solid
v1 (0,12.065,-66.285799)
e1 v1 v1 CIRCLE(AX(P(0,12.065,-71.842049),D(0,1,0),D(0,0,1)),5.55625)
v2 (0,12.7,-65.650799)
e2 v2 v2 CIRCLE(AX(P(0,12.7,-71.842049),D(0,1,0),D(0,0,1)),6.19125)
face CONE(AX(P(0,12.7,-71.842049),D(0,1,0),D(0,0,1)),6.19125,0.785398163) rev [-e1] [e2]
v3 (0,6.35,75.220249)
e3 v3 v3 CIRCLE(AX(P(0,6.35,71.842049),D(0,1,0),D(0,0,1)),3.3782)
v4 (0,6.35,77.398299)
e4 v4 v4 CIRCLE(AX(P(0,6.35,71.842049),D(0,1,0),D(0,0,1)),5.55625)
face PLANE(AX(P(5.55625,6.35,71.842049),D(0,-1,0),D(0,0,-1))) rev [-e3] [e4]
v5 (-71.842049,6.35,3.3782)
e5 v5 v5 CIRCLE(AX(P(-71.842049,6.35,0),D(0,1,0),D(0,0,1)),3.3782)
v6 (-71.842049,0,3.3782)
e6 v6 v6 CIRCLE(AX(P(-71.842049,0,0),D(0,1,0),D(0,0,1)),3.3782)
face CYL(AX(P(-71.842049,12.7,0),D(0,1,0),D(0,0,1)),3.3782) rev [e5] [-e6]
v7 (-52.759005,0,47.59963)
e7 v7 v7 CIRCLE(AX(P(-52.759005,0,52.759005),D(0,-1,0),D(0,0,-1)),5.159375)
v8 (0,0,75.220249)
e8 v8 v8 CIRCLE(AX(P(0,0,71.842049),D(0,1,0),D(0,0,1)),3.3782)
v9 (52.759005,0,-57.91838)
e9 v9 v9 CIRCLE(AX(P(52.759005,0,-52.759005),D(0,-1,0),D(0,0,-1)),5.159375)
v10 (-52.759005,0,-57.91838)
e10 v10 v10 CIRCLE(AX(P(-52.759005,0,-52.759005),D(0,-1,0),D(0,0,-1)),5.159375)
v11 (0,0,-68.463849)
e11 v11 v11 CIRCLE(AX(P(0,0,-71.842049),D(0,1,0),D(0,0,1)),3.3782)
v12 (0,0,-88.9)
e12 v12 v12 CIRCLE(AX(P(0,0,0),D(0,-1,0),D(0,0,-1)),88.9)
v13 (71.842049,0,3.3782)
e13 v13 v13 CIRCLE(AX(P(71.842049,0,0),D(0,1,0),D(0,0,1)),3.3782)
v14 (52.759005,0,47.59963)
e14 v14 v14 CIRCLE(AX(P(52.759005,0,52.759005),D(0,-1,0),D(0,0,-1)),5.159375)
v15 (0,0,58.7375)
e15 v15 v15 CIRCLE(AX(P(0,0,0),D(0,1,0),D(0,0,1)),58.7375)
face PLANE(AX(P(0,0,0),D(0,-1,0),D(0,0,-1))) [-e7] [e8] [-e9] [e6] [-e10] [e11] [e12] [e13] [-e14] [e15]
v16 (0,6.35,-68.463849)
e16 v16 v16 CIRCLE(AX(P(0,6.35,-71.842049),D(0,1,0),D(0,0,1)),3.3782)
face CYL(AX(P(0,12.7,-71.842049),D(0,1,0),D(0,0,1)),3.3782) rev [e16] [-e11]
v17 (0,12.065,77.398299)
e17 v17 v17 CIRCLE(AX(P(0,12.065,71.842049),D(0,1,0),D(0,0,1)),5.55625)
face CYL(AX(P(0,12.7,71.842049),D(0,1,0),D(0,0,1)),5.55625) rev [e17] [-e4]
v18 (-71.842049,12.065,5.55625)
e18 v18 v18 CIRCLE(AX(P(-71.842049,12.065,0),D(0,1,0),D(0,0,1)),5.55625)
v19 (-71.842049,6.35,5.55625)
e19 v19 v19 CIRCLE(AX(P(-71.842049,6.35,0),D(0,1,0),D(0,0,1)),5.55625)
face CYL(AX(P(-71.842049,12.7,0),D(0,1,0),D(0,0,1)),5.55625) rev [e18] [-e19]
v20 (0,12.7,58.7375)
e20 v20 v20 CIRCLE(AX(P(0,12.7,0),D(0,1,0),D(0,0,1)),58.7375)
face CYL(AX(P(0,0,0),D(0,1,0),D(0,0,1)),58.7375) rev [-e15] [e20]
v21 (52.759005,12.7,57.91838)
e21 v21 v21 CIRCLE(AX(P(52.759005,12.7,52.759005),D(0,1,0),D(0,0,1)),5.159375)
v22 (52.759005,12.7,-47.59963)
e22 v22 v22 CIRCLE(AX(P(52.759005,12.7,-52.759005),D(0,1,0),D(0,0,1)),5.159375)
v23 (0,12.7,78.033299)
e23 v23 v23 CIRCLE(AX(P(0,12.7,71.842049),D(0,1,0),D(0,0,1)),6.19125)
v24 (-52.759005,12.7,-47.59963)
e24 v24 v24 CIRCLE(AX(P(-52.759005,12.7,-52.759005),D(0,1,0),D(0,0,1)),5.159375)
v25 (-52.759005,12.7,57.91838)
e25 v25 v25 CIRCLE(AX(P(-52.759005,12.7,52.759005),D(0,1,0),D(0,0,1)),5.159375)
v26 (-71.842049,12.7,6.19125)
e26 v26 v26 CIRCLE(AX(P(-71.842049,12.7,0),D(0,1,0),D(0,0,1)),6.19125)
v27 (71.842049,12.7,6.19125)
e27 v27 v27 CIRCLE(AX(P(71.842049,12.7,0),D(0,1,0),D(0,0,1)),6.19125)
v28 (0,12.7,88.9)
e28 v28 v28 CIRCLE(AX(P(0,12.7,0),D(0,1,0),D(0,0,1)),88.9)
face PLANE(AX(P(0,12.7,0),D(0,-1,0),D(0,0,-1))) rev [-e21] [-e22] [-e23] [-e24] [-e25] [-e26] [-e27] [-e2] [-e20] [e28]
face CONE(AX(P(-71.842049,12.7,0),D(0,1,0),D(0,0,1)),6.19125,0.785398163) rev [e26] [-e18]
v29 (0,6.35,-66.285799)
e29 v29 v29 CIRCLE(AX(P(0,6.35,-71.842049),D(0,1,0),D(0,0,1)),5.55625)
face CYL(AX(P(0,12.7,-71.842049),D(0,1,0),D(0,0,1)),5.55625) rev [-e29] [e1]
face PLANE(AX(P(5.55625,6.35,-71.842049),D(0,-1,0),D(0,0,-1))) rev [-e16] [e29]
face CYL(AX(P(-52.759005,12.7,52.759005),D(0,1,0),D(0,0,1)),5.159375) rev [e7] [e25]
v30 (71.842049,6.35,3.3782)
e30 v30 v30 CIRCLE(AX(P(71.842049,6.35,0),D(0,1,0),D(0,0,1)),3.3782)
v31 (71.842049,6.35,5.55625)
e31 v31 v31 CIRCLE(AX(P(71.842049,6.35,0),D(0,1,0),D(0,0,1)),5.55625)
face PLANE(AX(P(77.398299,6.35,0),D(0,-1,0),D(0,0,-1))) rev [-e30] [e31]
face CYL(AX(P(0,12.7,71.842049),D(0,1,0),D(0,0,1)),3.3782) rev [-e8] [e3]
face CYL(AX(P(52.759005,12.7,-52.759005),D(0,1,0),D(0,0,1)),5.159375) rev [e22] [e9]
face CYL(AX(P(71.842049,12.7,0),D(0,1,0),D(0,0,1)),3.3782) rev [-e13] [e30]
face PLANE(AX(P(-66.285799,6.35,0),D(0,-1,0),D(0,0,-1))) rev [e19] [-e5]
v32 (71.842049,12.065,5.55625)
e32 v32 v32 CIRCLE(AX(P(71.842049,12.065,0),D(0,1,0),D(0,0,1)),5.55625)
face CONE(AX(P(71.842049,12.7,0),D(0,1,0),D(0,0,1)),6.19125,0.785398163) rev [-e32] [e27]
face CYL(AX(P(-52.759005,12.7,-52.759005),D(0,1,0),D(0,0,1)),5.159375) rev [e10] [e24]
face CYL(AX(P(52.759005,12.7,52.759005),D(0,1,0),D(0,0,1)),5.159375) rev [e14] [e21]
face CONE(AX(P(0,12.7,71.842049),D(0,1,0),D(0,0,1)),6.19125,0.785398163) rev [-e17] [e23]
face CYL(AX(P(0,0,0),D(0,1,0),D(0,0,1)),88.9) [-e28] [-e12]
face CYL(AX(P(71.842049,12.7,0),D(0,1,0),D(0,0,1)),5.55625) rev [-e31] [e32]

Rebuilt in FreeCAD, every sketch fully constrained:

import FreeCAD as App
import Part
import Sketcher
Q = App.Units.Quantity

doc = App.newDocument("Part")
params = doc.addObject("Spreadsheet::Sheet", "Params")
for row, (alias, value) in enumerate([
    ("sketch1_width", "7 in"),
    ("pad1_length", "0.5 in"),
    ("sketch2_diameter", "0.40625 in"),
    ("hole_diameter", "0.40625 in"),
    ("hole_depth", "1 in"),
    ("sketch3_diameter", "4.625 in"),
    ("sketch4_diameter", "7 in"),
    ("pocket2_length", "0.5 in"),
    ("sketch5_width", "0.5 in"),
    ("sketch5_width2", "0.25 in"),
    ("sketch5_width3", "0.225 in"),
    ("sketch5_height", "0.133 in"),
    ("groove_angle", "360 deg"),
    ("linearpattern_pitch", "4 in"),
    ("linearpattern2_pitch", "4 in"),
    ("linearpattern3_pitch", "143.684098 mm"),
], start=1):
    params.set(f"A{row}", alias)
    params.set(f"B{row}", "=" + value)
    params.setAlias(f"B{row}", alias)

body = doc.addObject("PartDesign::Body", "Body")

# Sketch on XZ plane
sketch1 = body.newObject("Sketcher::SketchObject", "Sketch")
sketch1.AttachmentSupport = (doc.getObject("XZ_Plane"), [""])
sketch1.MapMode = "FlatFace"
sketch1.addGeometry(Part.LineSegment(App.Vector(-89, -89, 0), App.Vector(-89, 89, 0)), False)
sketch1.addGeometry(Part.LineSegment(App.Vector(-89, 89, 0), App.Vector(89, 89, 0)), False)
sketch1.addGeometry(Part.LineSegment(App.Vector(89, 89, 0), App.Vector(89, -89, 0)), False)
sketch1.addGeometry(Part.LineSegment(App.Vector(89, -89, 0), App.Vector(-89, -89, 0)), False)
sketch1.addConstraint(Sketcher.Constraint("Coincident", 0, 2, 1, 1))
sketch1.addConstraint(Sketcher.Constraint("Coincident", 1, 2, 2, 1))
sketch1.addConstraint(Sketcher.Constraint("Coincident", 2, 2, 3, 1))
sketch1.addConstraint(Sketcher.Constraint("Coincident", 3, 2, 0, 1))
sketch1.addConstraint(Sketcher.Constraint("Vertical", 0))
sketch1.addConstraint(Sketcher.Constraint("Horizontal", 1))
sketch1.addConstraint(Sketcher.Constraint("Vertical", 2))
sketch1.addConstraint(Sketcher.Constraint("Horizontal", 3))
sketch1.addConstraint(Sketcher.Constraint("Symmetric", 0, 2, 2, 2, -1, 1))
sketch1.addConstraint(Sketcher.Constraint("Equal", 3, 0))
sketch1.addConstraint(Sketcher.Constraint("DistanceX", 1, 1, 1, 2, Q("7 in")))
sketch1.setExpression("Constraints[10]", "Params.sketch1_width")
pad1 = body.newObject("PartDesign::Pad", "Pad")
pad1.Profile = sketch1
pad1.setExpression("Length", "Params.pad1_length")
pad1.Reversed = True

# Sketch on XZ plane
sketch2 = body.newObject("Sketcher::SketchObject", "Sketch001")
sketch2.AttachmentSupport = (doc.getObject("XZ_Plane"), [""])
sketch2.MapMode = "FlatFace"
sketch2.AttachmentOffset = App.Placement(App.Vector(0, 0, -0.5 * 25.4), App.Rotation())
sketch2.addGeometry(Part.Circle(App.Vector(-53, -53, 0), App.Vector(0, 0, 1), 5), False)
sketch2.addGeometry(Part.Circle(App.Vector(53, -53, 0), App.Vector(0, 0, 1), 5), False)
sketch2.addGeometry(Part.Circle(App.Vector(53, 53, 0), App.Vector(0, 0, 1), 5), False)
sketch2.addGeometry(Part.Circle(App.Vector(-53, 53, 0), App.Vector(0, 0, 1), 5), False)
sketch2.addConstraint(Sketcher.Constraint("Equal", 0, 1))
sketch2.addConstraint(Sketcher.Constraint("Equal", 1, 2))
sketch2.addConstraint(Sketcher.Constraint("Equal", 2, 3))
sketch2.addConstraint(Sketcher.Constraint("Symmetric", 0, 3, 2, 3, -1, 1))
sketch2.addConstraint(Sketcher.Constraint("Symmetric", 1, 3, 3, 3, -1, 1))
sketch2.addConstraint(Sketcher.Constraint("Symmetric", 0, 3, 1, 3, -2))
sketch2.addConstraint(Sketcher.Constraint("Diameter", 0, Q("0.40625 in")))
sketch2.addConstraint(Sketcher.Constraint("DistanceX", 0, 3, 1, 3, Q("105.518009 mm")))
sketch2.addConstraint(Sketcher.Constraint("DistanceY", 1, 3, 2, 3, Q("105.518009 mm")))
sketch2.setExpression("Constraints[6]", "Params.sketch2_diameter")
doc.recompute()
hole = body.newObject("PartDesign::Hole", "Hole")
hole.Profile = sketch2
hole.ThreadType = "None"
hole.setExpression("Diameter", "Params.hole_diameter")
hole.DepthType = "Dimension"
hole.setExpression("Depth", "Params.hole_depth")
hole.DrillPoint = "Angled"
hole.DrillPointAngle = 118
hole.Reversed = True

# Sketch on XZ plane
sketch3 = body.newObject("Sketcher::SketchObject", "Sketch002")
sketch3.AttachmentSupport = (doc.getObject("XZ_Plane"), [""])
sketch3.MapMode = "FlatFace"
sketch3.AttachmentOffset = App.Placement(App.Vector(0, 0, -0.5 * 25.4), App.Rotation())
sketch3.addGeometry(Part.Circle(App.Vector(0, 0, 0), App.Vector(0, 0, 1), 59), False)
sketch3.addConstraint(Sketcher.Constraint("Coincident", 0, 3, -1, 1))
sketch3.addConstraint(Sketcher.Constraint("Diameter", 0, Q("4.625 in")))
sketch3.setExpression("Constraints[1]", "Params.sketch3_diameter")
pocket1 = body.newObject("PartDesign::Pocket", "Pocket")
pocket1.Profile = sketch3
pocket1.Type = "ThroughAll"
pocket1.Reversed = True

# Sketch on XZ plane
sketch4 = body.newObject("Sketcher::SketchObject", "Sketch003")
sketch4.AttachmentSupport = (doc.getObject("XZ_Plane"), [""])
sketch4.MapMode = "FlatFace"
sketch4.AttachmentOffset = App.Placement(App.Vector(0, 0, -0.5 * 25.4), App.Rotation())
sketch4.addGeometry(Part.LineSegment(App.Vector(-115, -115, 0), App.Vector(-115, 115, 0)), False)
sketch4.addGeometry(Part.LineSegment(App.Vector(-115, 115, 0), App.Vector(115, 115, 0)), False)
sketch4.addGeometry(Part.LineSegment(App.Vector(115, 115, 0), App.Vector(115, -115, 0)), False)
sketch4.addGeometry(Part.LineSegment(App.Vector(115, -115, 0), App.Vector(-115, -115, 0)), False)
sketch4.addGeometry(Part.Circle(App.Vector(0, 0, 0), App.Vector(0, 0, 1), 89), False)
sketch4.addConstraint(Sketcher.Constraint("Coincident", 0, 2, 1, 1))
sketch4.addConstraint(Sketcher.Constraint("Coincident", 1, 2, 2, 1))
sketch4.addConstraint(Sketcher.Constraint("Coincident", 2, 2, 3, 1))
sketch4.addConstraint(Sketcher.Constraint("Coincident", 3, 2, 0, 1))
sketch4.addConstraint(Sketcher.Constraint("Vertical", 0))
sketch4.addConstraint(Sketcher.Constraint("Horizontal", 1))
sketch4.addConstraint(Sketcher.Constraint("Vertical", 2))
sketch4.addConstraint(Sketcher.Constraint("Horizontal", 3))
sketch4.addConstraint(Sketcher.Constraint("Coincident", 4, 3, -1, 1))
sketch4.addConstraint(Sketcher.Constraint("Symmetric", 0, 2, 2, 2, -1, 1))
sketch4.addConstraint(Sketcher.Constraint("Equal", 3, 0))
sketch4.addConstraint(Sketcher.Constraint("Diameter", 4, Q("7 in")))
sketch4.addConstraint(Sketcher.Constraint("DistanceX", 1, 1, 1, 2, Q("230.154 mm")))
sketch4.setExpression("Constraints[11]", "Params.sketch4_diameter")
pocket2 = body.newObject("PartDesign::Pocket", "Pocket001")
pocket2.Profile = sketch4
pocket2.setExpression("Length", "Params.pocket2_length")
pocket2.Reversed = True

# Sketch on YZ plane
sketch5 = body.newObject("Sketcher::SketchObject", "Sketch004")
sketch5.AttachmentSupport = (doc.getObject("YZ_Plane"), [""])
sketch5.MapMode = "FlatFace"
sketch5.addGeometry(Part.LineSegment(App.Vector(0, -71.8, 0), App.Vector(12.7, -71.8, 0)), False)
sketch5.addGeometry(Part.LineSegment(App.Vector(12.7, -71.8, 0), App.Vector(12.7, -65.7, 0)), False)
sketch5.addGeometry(Part.LineSegment(App.Vector(12.7, -65.7, 0), App.Vector(12.1, -66.3, 0)), False)
sketch5.addGeometry(Part.LineSegment(App.Vector(12.1, -66.3, 0), App.Vector(6.3, -66.3, 0)), False)
sketch5.addGeometry(Part.LineSegment(App.Vector(6.3, -66.3, 0), App.Vector(6.3, -68.5, 0)), False)
sketch5.addGeometry(Part.LineSegment(App.Vector(6.3, -68.5, 0), App.Vector(0, -68.5, 0)), False)
sketch5.addGeometry(Part.LineSegment(App.Vector(0, -68.5, 0), App.Vector(0, -71.8, 0)), False)
sketch5.addGeometry(Part.LineSegment(App.Vector(12.7, -71.8, 0), App.Vector(0, -71.8, 0)), True)  # axis
sketch5.addConstraint(Sketcher.Constraint("Coincident", 0, 2, 1, 1))
sketch5.addConstraint(Sketcher.Constraint("Coincident", 1, 2, 2, 1))
sketch5.addConstraint(Sketcher.Constraint("Coincident", 2, 2, 3, 1))
sketch5.addConstraint(Sketcher.Constraint("Coincident", 3, 2, 4, 1))
sketch5.addConstraint(Sketcher.Constraint("Coincident", 4, 2, 5, 1))
sketch5.addConstraint(Sketcher.Constraint("Coincident", 5, 2, 6, 1))
sketch5.addConstraint(Sketcher.Constraint("Coincident", 6, 2, 0, 1))
sketch5.addConstraint(Sketcher.Constraint("Horizontal", 0))
sketch5.addConstraint(Sketcher.Constraint("Vertical", 1))
sketch5.addConstraint(Sketcher.Constraint("Horizontal", 3))
sketch5.addConstraint(Sketcher.Constraint("Vertical", 4))
sketch5.addConstraint(Sketcher.Constraint("Horizontal", 5))
sketch5.addConstraint(Sketcher.Constraint("Vertical", 6))
sketch5.addConstraint(Sketcher.Constraint("Horizontal", 7))
sketch5.addConstraint(Sketcher.Constraint("Coincident", 7, 1, 0, 2))
sketch5.addConstraint(Sketcher.Constraint("PointOnObject", 5, 2, -2))
sketch5.addConstraint(Sketcher.Constraint("PointOnObject", 7, 2, -2))
sketch5.addConstraint(Sketcher.Constraint("DistanceX", 0, 1, 0, 2, Q("0.5 in")))
sketch5.addConstraint(Sketcher.Constraint("Angle", 2, Q("-135 deg")))
sketch5.addConstraint(Sketcher.Constraint("DistanceX", 5, 2, 5, 1, Q("0.25 in")))
sketch5.addConstraint(Sketcher.Constraint("DistanceX", 3, 2, 3, 1, Q("0.225 in")))
sketch5.addConstraint(Sketcher.Constraint("DistanceY", 6, 2, 6, 1, Q("0.133 in")))
sketch5.addConstraint(Sketcher.Constraint("DistanceY", 0, 2, 2, 2, Q("0.21875 in")))
sketch5.addConstraint(Sketcher.Constraint("DistanceY", 1, 2, -1, 1, Q("65.650799 mm")))
sketch5.setExpression("Constraints[17]", "Params.sketch5_width")
sketch5.setExpression("Constraints[19]", "Params.sketch5_width2")
sketch5.setExpression("Constraints[20]", "Params.sketch5_width3")
sketch5.setExpression("Constraints[21]", "Params.sketch5_height")
groove = body.newObject("PartDesign::Groove", "Groove")
groove.Profile = sketch5
groove.ReferenceAxis = (sketch5, ["Axis0"])
groove.setExpression("Angle", "Params.groove_angle")
doc.recompute()

datumline = body.newObject("PartDesign::Line", "DatumLine")
datumline.Placement = App.Placement(App.Vector(0, 0, 0), App.Rotation(App.Vector(0, 0, 1), App.Vector(0.707106781, 0, 0.707106781)))
linearpattern = body.newObject("PartDesign::LinearPattern", "LinearPattern")
linearpattern.Originals = [groove]
linearpattern.Direction = (datumline, [""])
linearpattern.Mode = "offset"
linearpattern.setExpression("Offset", "Params.linearpattern_pitch")
linearpattern.Occurrences = 2
body.Tip = linearpattern
doc.recompute()

datumline2 = body.newObject("PartDesign::Line", "DatumLine001")
datumline2.Placement = App.Placement(App.Vector(0, 0, 0), App.Rotation(App.Vector(0, 0, 1), App.Vector(-0.707106781, 0, 0.707106781)))
linearpattern2 = body.newObject("PartDesign::LinearPattern", "LinearPattern001")
linearpattern2.Originals = [groove]
linearpattern2.Direction = (datumline2, [""])
linearpattern2.Mode = "offset"
linearpattern2.setExpression("Offset", "Params.linearpattern2_pitch")
linearpattern2.Occurrences = 2
body.Tip = linearpattern2
doc.recompute()

linearpattern3 = body.newObject("PartDesign::LinearPattern", "LinearPattern002")
linearpattern3.Originals = [groove]
linearpattern3.Direction = (doc.getObject("Z_Axis"), [""])
linearpattern3.Mode = "offset"
linearpattern3.setExpression("Offset", "Params.linearpattern3_pitch")
linearpattern3.Occurrences = 2
body.Tip = linearpattern3

doc.recompute()
